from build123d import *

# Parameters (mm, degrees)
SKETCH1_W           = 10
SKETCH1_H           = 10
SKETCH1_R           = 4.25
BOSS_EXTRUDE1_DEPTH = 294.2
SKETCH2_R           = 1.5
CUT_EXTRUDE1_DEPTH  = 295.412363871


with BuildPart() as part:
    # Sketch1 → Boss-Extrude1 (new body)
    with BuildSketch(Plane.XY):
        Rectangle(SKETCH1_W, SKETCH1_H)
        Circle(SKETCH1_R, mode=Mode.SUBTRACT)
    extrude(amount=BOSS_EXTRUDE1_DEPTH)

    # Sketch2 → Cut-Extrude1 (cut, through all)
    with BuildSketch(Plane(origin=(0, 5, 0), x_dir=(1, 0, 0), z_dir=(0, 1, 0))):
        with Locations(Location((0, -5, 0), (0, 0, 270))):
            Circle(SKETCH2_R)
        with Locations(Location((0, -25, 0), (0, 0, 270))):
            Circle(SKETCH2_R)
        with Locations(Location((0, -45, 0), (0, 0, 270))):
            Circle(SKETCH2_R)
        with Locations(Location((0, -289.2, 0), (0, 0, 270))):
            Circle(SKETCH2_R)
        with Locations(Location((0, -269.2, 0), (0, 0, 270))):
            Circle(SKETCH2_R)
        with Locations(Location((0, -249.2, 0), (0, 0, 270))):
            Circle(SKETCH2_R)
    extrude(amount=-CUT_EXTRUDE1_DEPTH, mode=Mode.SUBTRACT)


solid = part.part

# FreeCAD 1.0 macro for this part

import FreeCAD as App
import Part
import Sketcher

V = App.Vector
Q = App.Units.Quantity

doc = App.newDocument("Part")
body = doc.addObject("PartDesign::Body", "Body")

# Sketch on XY plane
sketch1 = doc.addObject("Sketcher::SketchObject", "Sketch")
body.addObject(sketch1)
sketch1.AttachmentSupport = (doc.XY_Plane, [""])
sketch1.MapMode = "FlatFace"
sketch1.addGeometry(Part.LineSegment(V(-5, 5, 0), V(-5, -5, 0)), False)
sketch1.addGeometry(Part.LineSegment(V(-5, -5, 0), V(5, -5, 0)), False)
sketch1.addGeometry(Part.LineSegment(V(5, -5, 0), V(5, 5, 0)), False)
sketch1.addGeometry(Part.LineSegment(V(5, 5, 0), V(-5, 5, 0)), False)
sketch1.addGeometry(Part.Circle(V(0, 0, 0), V(0, 0, 1), 4.25), False)
sketch1.addConstraint(Sketcher.Constraint("Coincident", 0, 2, 1, 1))
sketch1.addConstraint(Sketcher.Constraint("Coincident", 1, 2, 2, 1))
sketch1.addConstraint(Sketcher.Constraint("Coincident", 2, 2, 3, 1))
sketch1.addConstraint(Sketcher.Constraint("Coincident", 3, 2, 0, 1))
sketch1.addConstraint(Sketcher.Constraint("Vertical", 0))
sketch1.addConstraint(Sketcher.Constraint("Horizontal", 1))
sketch1.addConstraint(Sketcher.Constraint("Vertical", 2))
sketch1.addConstraint(Sketcher.Constraint("Horizontal", 3))
sketch1.addConstraint(Sketcher.Constraint("Coincident", 4, 3, -1, 1))
sketch1.addConstraint(Sketcher.Constraint("Symmetric", 0, 2, 2, 2, -1, 1))
sketch1.addConstraint(Sketcher.Constraint("Equal", 3, 0))
sketch1.addConstraint(Sketcher.Constraint("Diameter", 4, Q("8.5 mm")))
sketch1.addConstraint(Sketcher.Constraint("DistanceX", 1, 1, 1, 2, Q("10 mm")))
pad1 = doc.addObject("PartDesign::Pad", "Pad")
body.addObject(pad1)
pad1.Profile = sketch1
pad1.Length = 294.2

# Sketch on XZ plane
sketch2 = doc.addObject("Sketcher::SketchObject", "Sketch001")
body.addObject(sketch2)
sketch2.AttachmentSupport = (doc.XZ_Plane, [""])
sketch2.MapMode = "FlatFace"
sketch2.AttachmentOffset = App.Placement(V(0, 0, -5), App.Rotation())
sketch2.addGeometry(Part.Circle(V(0, 5, 0), V(0, 0, 1), 1.5), False)
sketch2.addGeometry(Part.Circle(V(0, 25, 0), V(0, 0, 1), 1.5), False)
sketch2.addGeometry(Part.Circle(V(0, 45, 0), V(0, 0, 1), 1.5), False)
sketch2.addGeometry(Part.Circle(V(0, 289.2, 0), V(0, 0, 1), 1.5), False)
sketch2.addGeometry(Part.Circle(V(0, 269.2, 0), V(0, 0, 1), 1.5), False)
sketch2.addGeometry(Part.Circle(V(0, 249.2, 0), V(0, 0, 1), 1.5), False)
sketch2.addConstraint(Sketcher.Constraint("Equal", 0, 1))
sketch2.addConstraint(Sketcher.Constraint("Equal", 1, 2))
sketch2.addConstraint(Sketcher.Constraint("Equal", 2, 3))
sketch2.addConstraint(Sketcher.Constraint("Equal", 3, 4))
sketch2.addConstraint(Sketcher.Constraint("Equal", 4, 5))
sketch2.addConstraint(Sketcher.Constraint("PointOnObject", 0, 3, -2))
sketch2.addConstraint(Sketcher.Constraint("PointOnObject", 1, 3, -2))
sketch2.addConstraint(Sketcher.Constraint("PointOnObject", 2, 3, -2))
sketch2.addConstraint(Sketcher.Constraint("PointOnObject", 3, 3, -2))
sketch2.addConstraint(Sketcher.Constraint("PointOnObject", 4, 3, -2))
sketch2.addConstraint(Sketcher.Constraint("PointOnObject", 5, 3, -2))
sketch2.addConstraint(Sketcher.Constraint("Diameter", 0, Q("3 mm")))
sketch2.addConstraint(Sketcher.Constraint("DistanceY", -1, 1, 0, 3, Q("5 mm")))
sketch2.addConstraint(Sketcher.Constraint("DistanceY", -1, 1, 1, 3, Q("25 mm")))
sketch2.addConstraint(Sketcher.Constraint("DistanceY", -1, 1, 2, 3, Q("45 mm")))
sketch2.addConstraint(Sketcher.Constraint("DistanceY", 4, 3, 3, 3, Q("20 mm")))
sketch2.addConstraint(Sketcher.Constraint("DistanceY", 5, 3, 4, 3, Q("20 mm")))
sketch2.addConstraint(Sketcher.Constraint("DistanceY", -1, 1, 3, 3, Q("289.2 mm")))
pocket1 = doc.addObject("PartDesign::Pocket", "Pocket")
body.addObject(pocket1)
pocket1.Profile = sketch2
pocket1.Type = "ThroughAll"
pocket1.Reversed = True

doc.recompute()
